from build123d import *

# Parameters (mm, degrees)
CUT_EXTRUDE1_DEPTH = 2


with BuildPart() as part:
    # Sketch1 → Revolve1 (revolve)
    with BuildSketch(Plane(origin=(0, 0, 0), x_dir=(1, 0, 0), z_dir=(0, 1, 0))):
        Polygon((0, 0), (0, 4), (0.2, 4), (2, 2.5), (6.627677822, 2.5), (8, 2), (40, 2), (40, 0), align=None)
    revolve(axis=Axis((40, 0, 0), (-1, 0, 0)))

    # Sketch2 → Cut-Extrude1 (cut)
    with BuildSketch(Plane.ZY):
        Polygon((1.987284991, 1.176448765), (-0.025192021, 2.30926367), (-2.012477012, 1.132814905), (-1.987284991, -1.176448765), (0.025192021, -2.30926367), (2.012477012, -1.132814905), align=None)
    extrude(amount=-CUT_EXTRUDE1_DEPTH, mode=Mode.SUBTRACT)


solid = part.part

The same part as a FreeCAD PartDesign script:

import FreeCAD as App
import Part
import Sketcher

V = App.Vector
Q = App.Units.Quantity


def add_polygon(sketch, points):
    """Adds a closed chain of lines whose ends are joined by coincident constraints."""
    first, n = sketch.GeometryCount, len(points)
    for a, b in zip(points, points[1:] + points[:1]):
        sketch.addGeometry(Part.LineSegment(App.Vector(*a, 0), App.Vector(*b, 0)), False)
    for i in range(n):
        sketch.addConstraint(Sketcher.Constraint("Coincident", first + i, 2, first + (i + 1) % n, 1))

doc = App.newDocument("Part")
body = doc.addObject("PartDesign::Body", "Body")

sketch1 = body.newObject("Sketcher::SketchObject", "Sketch")
sketch1.AttachmentSupport = (doc.getObject("XZ_Plane"), [""])
sketch1.MapMode = "FlatFace"
add_polygon(sketch1, [(0, -4), (0, 0), (40, 0), (40, -2), (8, -2), (6.63, -2.5), (2, -2.5), (0.2, -4)])
sketch1.addConstraint([
    Sketcher.Constraint("Vertical", 0),
    Sketcher.Constraint("Horizontal", 1),
    Sketcher.Constraint("Vertical", 2),
    Sketcher.Constraint("Horizontal", 3),
    Sketcher.Constraint("Horizontal", 5),
    Sketcher.Constraint("Horizontal", 7),
    Sketcher.Constraint("Coincident", 0, 2, -1, 1),
    Sketcher.Constraint("DistanceX", 1, 1, 1, 2, Q("40 mm")),
    Sketcher.Constraint("DistanceX", 3, 2, 3, 1, Q("32 mm")),
    Sketcher.Constraint("DistanceY", 0, 1, 0, 2, Q("4 mm")),
    Sketcher.Constraint("DistanceY", 2, 2, 2, 1, Q("2 mm")),
    Sketcher.Constraint("DistanceX", 7, 2, 7, 1, Q("0.2 mm")),
    Sketcher.Constraint("DistanceX", -1, 1, 5, 2, Q("2 mm")),
    Sketcher.Constraint("DistanceY", 4, 2, -1, 1, Q("2.5 mm")),
    Sketcher.Constraint("Distance", 4, Q("1.460571 mm")),
])
revolution = body.newObject("PartDesign::Revolution", "Revolution")
revolution.Profile = sketch1
revolution.ReferenceAxis = (sketch1, ["H_Axis"])
revolution.Angle = 360

sketch2 = body.newObject("Sketcher::SketchObject", "Sketch001")
sketch2.AttachmentSupport = (doc.getObject("YZ_Plane"), [""])
sketch2.MapMode = "FlatFace"
add_polygon(sketch2, [(1.2, 2), (2.3, 0), (1.1, -2), (-1.2, -2), (-2.3, 0), (-1.1, 2)])
sketch2.addConstraint([
    Sketcher.Constraint("Symmetric", 0, 2, 3, 2, -1, 1),
    Sketcher.Constraint("Symmetric", 1, 2, 4, 2, -1, 1),
    Sketcher.Constraint("Symmetric", 2, 2, 5, 2, -1, 1),
    Sketcher.Constraint("Equal", 0, 1),
    Sketcher.Constraint("Equal", 1, 2),
    Sketcher.Constraint("Distance", 0, Q("2.309401 mm")),
    Sketcher.Constraint("DistanceX", 2, 2, -1, 1, Q("1.176449 mm")),
    Sketcher.Constraint("DistanceX", 1, 2, 0, 2, Q("1.176449 mm")),
    Sketcher.Constraint("DistanceX", 3, 2, 1, 2, Q("3.442079 mm")),
])
pocket1 = body.newObject("PartDesign::Pocket", "Pocket")
pocket1.Profile = sketch2
pocket1.Length = 2
pocket1.Reversed = True

doc.recompute()
